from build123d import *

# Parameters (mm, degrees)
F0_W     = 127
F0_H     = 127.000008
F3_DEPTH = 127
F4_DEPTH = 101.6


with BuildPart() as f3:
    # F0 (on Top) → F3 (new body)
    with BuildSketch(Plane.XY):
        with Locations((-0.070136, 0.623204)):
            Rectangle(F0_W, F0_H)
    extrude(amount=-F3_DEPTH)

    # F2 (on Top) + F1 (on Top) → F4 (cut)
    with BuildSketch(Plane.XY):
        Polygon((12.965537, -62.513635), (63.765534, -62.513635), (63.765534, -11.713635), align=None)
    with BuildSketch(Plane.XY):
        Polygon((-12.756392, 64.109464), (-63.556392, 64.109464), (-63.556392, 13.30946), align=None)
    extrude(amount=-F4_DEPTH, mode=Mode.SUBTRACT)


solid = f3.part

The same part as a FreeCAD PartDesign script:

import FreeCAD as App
import Part
import Sketcher
from FreeCAD import Vector
Q = App.Units.Quantity


def add_polygon(sketch, points):
    """Adds a closed chain of lines whose ends are joined by coincident constraints."""
    first, n = sketch.GeometryCount, len(points)
    for a, b in zip(points, points[1:] + points[:1]):
        sketch.addGeometry(Part.LineSegment(App.Vector(*a, 0), App.Vector(*b, 0)), False)
    for i in range(n):
        sketch.addConstraint(Sketcher.Constraint("Coincident", first + i, 2, first + (i + 1) % n, 1))

doc = App.newDocument("Part")
body = doc.addObject("PartDesign::Body", "Body")

# Sketch on XY plane
sketch1 = body.newObject("Sketcher::SketchObject", "Sketch")
sketch1.AttachmentSupport = (doc.getObject("XY_Plane"), [""])
sketch1.MapMode = "FlatFace"
add_polygon(sketch1, [(-63.570136, 64.123208), (-63.570136, -62.8768), (63.429864, -62.8768), (63.429864, 64.123208)])  # lines 0-3
sketch1.addConstraint(Sketcher.Constraint("Vertical", 0))
sketch1.addConstraint(Sketcher.Constraint("Horizontal", 1))
sketch1.addConstraint(Sketcher.Constraint("Vertical", 2))
sketch1.addConstraint(Sketcher.Constraint("Horizontal", 3))
sketch1.addConstraint(Sketcher.Constraint("DistanceX", 1, 1, 1, 2, Q("5 in")))
sketch1.addConstraint(Sketcher.Constraint("DistanceY", 0, 2, 0, 1, 127.000008))
sketch1.addConstraint(Sketcher.Constraint("DistanceY", 0, 2, -1, 1, 62.8768))
sketch1.addConstraint(Sketcher.Constraint("DistanceX", 0, 2, -1, 1, 63.570136))
pad1 = body.newObject("PartDesign::Pad", "Pad")
pad1.Profile = sketch1
pad1.Length = Q("5 in")
pad1.Reversed = True

# Sketch on XY plane
sketch2 = body.newObject("Sketcher::SketchObject", "Sketch001")
sketch2.AttachmentSupport = (doc.getObject("XY_Plane"), [""])
sketch2.MapMode = "FlatFace"
add_polygon(sketch2, [(12.965537, -62.513635), (63.765534, -62.513635), (63.765534, -11.713635)])  # lines 0-2
add_polygon(sketch2, [(-12.756392, 64.109464), (-63.556392, 64.109464), (-63.556392, 13.30946)])  # lines 3-5
sketch2.addConstraint(Sketcher.Constraint("Horizontal", 0))
sketch2.addConstraint(Sketcher.Constraint("Vertical", 1))
sketch2.addConstraint(Sketcher.Constraint("Horizontal", 3))
sketch2.addConstraint(Sketcher.Constraint("Vertical", 4))
sketch2.addConstraint(Sketcher.Constraint("Parallel", 2, 5))
sketch2.addConstraint(Sketcher.Constraint("Equal", 3, 1))
sketch2.addConstraint(Sketcher.Constraint("DistanceX", 0, 1, 0, 2, Q("1.9999999 in")))
sketch2.addConstraint(Sketcher.Constraint("DistanceX", 3, 2, 3, 1, Q("2 in")))
sketch2.addConstraint(Sketcher.Constraint("DistanceY", 2, 2, 3, 2, 126.623099))
sketch2.addConstraint(Sketcher.Constraint("DistanceY", -1, 1, 4, 2, 13.30946))
sketch2.addConstraint(Sketcher.Constraint("DistanceX", 3, 2, 2, 2, 76.521929))
sketch2.addConstraint(Sketcher.Constraint("DistanceX", -1, 1, 0, 2, 63.765534))
pocket1 = body.newObject("PartDesign::Pocket", "Pocket")
pocket1.Profile = sketch2
pocket1.Length = Q("4 in")

doc.recompute()
